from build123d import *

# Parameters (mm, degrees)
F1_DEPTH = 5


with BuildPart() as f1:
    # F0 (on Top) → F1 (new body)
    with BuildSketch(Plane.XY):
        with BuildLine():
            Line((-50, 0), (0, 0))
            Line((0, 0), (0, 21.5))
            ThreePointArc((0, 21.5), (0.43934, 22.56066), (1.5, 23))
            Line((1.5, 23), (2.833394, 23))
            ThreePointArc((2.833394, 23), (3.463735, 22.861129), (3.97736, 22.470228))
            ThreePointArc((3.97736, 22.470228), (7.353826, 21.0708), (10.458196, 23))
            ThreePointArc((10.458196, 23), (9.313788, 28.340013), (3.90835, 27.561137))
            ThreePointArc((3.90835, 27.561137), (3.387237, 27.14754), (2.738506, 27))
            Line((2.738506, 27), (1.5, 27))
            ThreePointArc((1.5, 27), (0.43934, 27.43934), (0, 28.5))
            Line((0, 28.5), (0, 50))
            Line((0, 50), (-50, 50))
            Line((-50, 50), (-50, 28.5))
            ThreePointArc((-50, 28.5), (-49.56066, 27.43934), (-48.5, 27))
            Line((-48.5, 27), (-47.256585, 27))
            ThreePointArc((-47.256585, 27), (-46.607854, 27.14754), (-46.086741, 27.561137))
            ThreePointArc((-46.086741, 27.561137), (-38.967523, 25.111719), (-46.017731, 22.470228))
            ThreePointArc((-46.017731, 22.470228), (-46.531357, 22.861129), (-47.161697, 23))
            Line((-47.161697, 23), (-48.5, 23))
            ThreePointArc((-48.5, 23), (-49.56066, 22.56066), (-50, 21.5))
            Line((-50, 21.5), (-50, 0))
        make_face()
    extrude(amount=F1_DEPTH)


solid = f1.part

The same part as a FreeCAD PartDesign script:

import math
import FreeCAD as App
import Part
import Sketcher

V = App.Vector
Q = App.Units.Quantity

doc = App.newDocument("Part")
body = doc.addObject("PartDesign::Body", "Body")

# Sketch on XY plane
sketch1 = body.newObject("Sketcher::SketchObject", "Sketch")
sketch1.AttachmentSupport = (doc.getObject("XY_Plane"), [""])
sketch1.MapMode = "FlatFace"
sketch1.addGeometry([
    Part.LineSegment(V(-50, 0, 0), V(0, 0, 0)),  # 0
    Part.LineSegment(V(0, 0, 0), V(0, 21.5, 0)),  # 1
    Part.ArcOfCircle(Part.Circle(V(1.5, 21.5, 0), V(0, 0, 1), 1.5), math.radians(90), math.radians(180)),  # 2
    Part.LineSegment(V(1.5, 23, 0), V(2.8, 23, 0)),  # 3
    Part.ArcOfCircle(Part.Circle(V(2.8, 21.5, 0), V(0, 0, 1), 1.5), math.radians(40), math.radians(90)),  # 4
    Part.ArcOfCircle(Part.Circle(V(7, 25.1, 0), V(0, 0, 1), 4), math.radians(-140), math.radians(-31)),  # 5
    Part.ArcOfCircle(Part.Circle(V(7, 25.1, 0), V(0, 0, 1), 4), math.radians(-31), math.radians(141)),  # 6
    Part.ArcOfCircle(Part.Circle(V(2.7, 28.5, 0), V(0, 0, 1), 1.5), math.radians(-90), math.radians(-39)),  # 7
    Part.LineSegment(V(2.7, 27, 0), V(1.5, 27, 0)),  # 8
    Part.ArcOfCircle(Part.Circle(V(1.5, 28.5, 0), V(0, 0, 1), 1.5), math.radians(-180), math.radians(-90)),  # 9
    Part.LineSegment(V(0, 28.5, 0), V(0, 50, 0)),  # 10
    Part.LineSegment(V(0, 50, 0), V(-50, 50, 0)),  # 11
    Part.LineSegment(V(-50, 50, 0), V(-50, 28.5, 0)),  # 12
    Part.ArcOfCircle(Part.Circle(V(-48.5, 28.5, 0), V(0, 0, 1), 1.5), math.radians(-180), math.radians(-90)),  # 13
    Part.LineSegment(V(-48.5, 27, 0), V(-47.3, 27, 0)),  # 14
    Part.ArcOfCircle(Part.Circle(V(-47.3, 28.5, 0), V(0, 0, 1), 1.5), math.radians(-90), math.radians(-39)),  # 15
    Part.ArcOfCircle(Part.Circle(V(-43, 25.1, 0), V(0, 0, 1), 4), math.radians(-140), math.radians(141)),  # 16
    Part.ArcOfCircle(Part.Circle(V(-47.2, 21.5, 0), V(0, 0, 1), 1.5), math.radians(40), math.radians(90)),  # 17
    Part.LineSegment(V(-47.2, 23, 0), V(-48.5, 23, 0)),  # 18
    Part.ArcOfCircle(Part.Circle(V(-48.5, 21.5, 0), V(0, 0, 1), 1.5), math.radians(90), math.radians(180)),  # 19
    Part.LineSegment(V(-50, 21.5, 0), V(-50, 0, 0)),  # 20
], False)
sketch1.addConstraint([
    Sketcher.Constraint("Coincident", 0, 2, 1, 1),
    Sketcher.Constraint("Tangent", 1, 2, 2, 2),
    Sketcher.Constraint("Tangent", 2, 1, 3, 1),
    Sketcher.Constraint("Tangent", 3, 2, 4, 2),
    Sketcher.Constraint("Tangent", 4, 1, 5, 1),
    Sketcher.Constraint("Tangent", 5, 2, 6, 1),
    Sketcher.Constraint("Tangent", 6, 2, 7, 2),
    Sketcher.Constraint("Tangent", 7, 1, 8, 1),
    Sketcher.Constraint("Tangent", 8, 2, 9, 2),
    Sketcher.Constraint("Tangent", 9, 1, 10, 1),
    Sketcher.Constraint("Coincident", 10, 2, 11, 1),
    Sketcher.Constraint("Coincident", 11, 2, 12, 1),
    Sketcher.Constraint("Tangent", 12, 2, 13, 1),
    Sketcher.Constraint("Tangent", 13, 2, 14, 1),
    Sketcher.Constraint("Tangent", 14, 2, 15, 1),
    Sketcher.Constraint("Tangent", 15, 2, 16, 2),
    Sketcher.Constraint("Tangent", 16, 1, 17, 1),
    Sketcher.Constraint("Tangent", 17, 2, 18, 1),
    Sketcher.Constraint("Tangent", 18, 2, 19, 1),
    Sketcher.Constraint("Tangent", 19, 2, 20, 1),
    Sketcher.Constraint("Coincident", 20, 2, 0, 1),
    Sketcher.Constraint("Horizontal", 0),
    Sketcher.Constraint("Vertical", 1),
    Sketcher.Constraint("Horizontal", 3),
    Sketcher.Constraint("Horizontal", 8),
    Sketcher.Constraint("Vertical", 10),
    Sketcher.Constraint("Horizontal", 11),
    Sketcher.Constraint("Vertical", 12),
    Sketcher.Constraint("Horizontal", 14),
    Sketcher.Constraint("Horizontal", 18),
    Sketcher.Constraint("Vertical", 20),
    Sketcher.Constraint("Coincident", 0, 2, -1, 1),
    Sketcher.Constraint("Equal", 5, 6),
    Sketcher.Constraint("Equal", 2, 9),
    Sketcher.Constraint("Equal", 9, 13),
    Sketcher.Constraint("Equal", 7, 15),
    Sketcher.Constraint("Equal", 6, 16),
    Sketcher.Constraint("Equal", 15, 17),
    Sketcher.Constraint("Equal", 17, 19),
    Sketcher.Constraint("PointOnObject", 9, 1, -2),
    Sketcher.Constraint("Horizontal", 9, 3, 13, 3),
    Sketcher.Constraint("Horizontal", 6, 3, 16, 3),
    Sketcher.Constraint("Horizontal", 2, 3, 17, 3),
    Sketcher.Constraint("Horizontal", 3, 2, 5, 2),
    Sketcher.Constraint("Horizontal", 4, 1, 16, 1),
    Sketcher.Constraint("Horizontal", 5, 2, 17, 2),
    Sketcher.Constraint("Vertical", 13, 3, 19, 3),
    Sketcher.Constraint("Equal", 1, 10),
    Sketcher.Constraint("Radius", 5, Q("4 mm")),
    Sketcher.Constraint("Radius", 2, Q("1.500001 mm")),
    Sketcher.Constraint("DistanceX", 0, 1, 0, 2, Q("50 mm")),
    Sketcher.Constraint("DistanceY", 1, 1, 1, 2, Q("21.5 mm")),
    Sketcher.Constraint("DistanceY", -1, 1, 7, 1, Q("27 mm")),
    Sketcher.Constraint("DistanceY", -1, 1, 6, 3, Q("25.057502 mm")),
    Sketcher.Constraint("DistanceX", 3, 1, 3, 2, Q("1.333394 mm")),
    Sketcher.Constraint("DistanceX", 14, 1, 14, 2, Q("1.243415 mm")),
])
pad1 = body.newObject("PartDesign::Pad", "Pad")
pad1.Profile = sketch1
pad1.Length = 5

doc.recompute()
